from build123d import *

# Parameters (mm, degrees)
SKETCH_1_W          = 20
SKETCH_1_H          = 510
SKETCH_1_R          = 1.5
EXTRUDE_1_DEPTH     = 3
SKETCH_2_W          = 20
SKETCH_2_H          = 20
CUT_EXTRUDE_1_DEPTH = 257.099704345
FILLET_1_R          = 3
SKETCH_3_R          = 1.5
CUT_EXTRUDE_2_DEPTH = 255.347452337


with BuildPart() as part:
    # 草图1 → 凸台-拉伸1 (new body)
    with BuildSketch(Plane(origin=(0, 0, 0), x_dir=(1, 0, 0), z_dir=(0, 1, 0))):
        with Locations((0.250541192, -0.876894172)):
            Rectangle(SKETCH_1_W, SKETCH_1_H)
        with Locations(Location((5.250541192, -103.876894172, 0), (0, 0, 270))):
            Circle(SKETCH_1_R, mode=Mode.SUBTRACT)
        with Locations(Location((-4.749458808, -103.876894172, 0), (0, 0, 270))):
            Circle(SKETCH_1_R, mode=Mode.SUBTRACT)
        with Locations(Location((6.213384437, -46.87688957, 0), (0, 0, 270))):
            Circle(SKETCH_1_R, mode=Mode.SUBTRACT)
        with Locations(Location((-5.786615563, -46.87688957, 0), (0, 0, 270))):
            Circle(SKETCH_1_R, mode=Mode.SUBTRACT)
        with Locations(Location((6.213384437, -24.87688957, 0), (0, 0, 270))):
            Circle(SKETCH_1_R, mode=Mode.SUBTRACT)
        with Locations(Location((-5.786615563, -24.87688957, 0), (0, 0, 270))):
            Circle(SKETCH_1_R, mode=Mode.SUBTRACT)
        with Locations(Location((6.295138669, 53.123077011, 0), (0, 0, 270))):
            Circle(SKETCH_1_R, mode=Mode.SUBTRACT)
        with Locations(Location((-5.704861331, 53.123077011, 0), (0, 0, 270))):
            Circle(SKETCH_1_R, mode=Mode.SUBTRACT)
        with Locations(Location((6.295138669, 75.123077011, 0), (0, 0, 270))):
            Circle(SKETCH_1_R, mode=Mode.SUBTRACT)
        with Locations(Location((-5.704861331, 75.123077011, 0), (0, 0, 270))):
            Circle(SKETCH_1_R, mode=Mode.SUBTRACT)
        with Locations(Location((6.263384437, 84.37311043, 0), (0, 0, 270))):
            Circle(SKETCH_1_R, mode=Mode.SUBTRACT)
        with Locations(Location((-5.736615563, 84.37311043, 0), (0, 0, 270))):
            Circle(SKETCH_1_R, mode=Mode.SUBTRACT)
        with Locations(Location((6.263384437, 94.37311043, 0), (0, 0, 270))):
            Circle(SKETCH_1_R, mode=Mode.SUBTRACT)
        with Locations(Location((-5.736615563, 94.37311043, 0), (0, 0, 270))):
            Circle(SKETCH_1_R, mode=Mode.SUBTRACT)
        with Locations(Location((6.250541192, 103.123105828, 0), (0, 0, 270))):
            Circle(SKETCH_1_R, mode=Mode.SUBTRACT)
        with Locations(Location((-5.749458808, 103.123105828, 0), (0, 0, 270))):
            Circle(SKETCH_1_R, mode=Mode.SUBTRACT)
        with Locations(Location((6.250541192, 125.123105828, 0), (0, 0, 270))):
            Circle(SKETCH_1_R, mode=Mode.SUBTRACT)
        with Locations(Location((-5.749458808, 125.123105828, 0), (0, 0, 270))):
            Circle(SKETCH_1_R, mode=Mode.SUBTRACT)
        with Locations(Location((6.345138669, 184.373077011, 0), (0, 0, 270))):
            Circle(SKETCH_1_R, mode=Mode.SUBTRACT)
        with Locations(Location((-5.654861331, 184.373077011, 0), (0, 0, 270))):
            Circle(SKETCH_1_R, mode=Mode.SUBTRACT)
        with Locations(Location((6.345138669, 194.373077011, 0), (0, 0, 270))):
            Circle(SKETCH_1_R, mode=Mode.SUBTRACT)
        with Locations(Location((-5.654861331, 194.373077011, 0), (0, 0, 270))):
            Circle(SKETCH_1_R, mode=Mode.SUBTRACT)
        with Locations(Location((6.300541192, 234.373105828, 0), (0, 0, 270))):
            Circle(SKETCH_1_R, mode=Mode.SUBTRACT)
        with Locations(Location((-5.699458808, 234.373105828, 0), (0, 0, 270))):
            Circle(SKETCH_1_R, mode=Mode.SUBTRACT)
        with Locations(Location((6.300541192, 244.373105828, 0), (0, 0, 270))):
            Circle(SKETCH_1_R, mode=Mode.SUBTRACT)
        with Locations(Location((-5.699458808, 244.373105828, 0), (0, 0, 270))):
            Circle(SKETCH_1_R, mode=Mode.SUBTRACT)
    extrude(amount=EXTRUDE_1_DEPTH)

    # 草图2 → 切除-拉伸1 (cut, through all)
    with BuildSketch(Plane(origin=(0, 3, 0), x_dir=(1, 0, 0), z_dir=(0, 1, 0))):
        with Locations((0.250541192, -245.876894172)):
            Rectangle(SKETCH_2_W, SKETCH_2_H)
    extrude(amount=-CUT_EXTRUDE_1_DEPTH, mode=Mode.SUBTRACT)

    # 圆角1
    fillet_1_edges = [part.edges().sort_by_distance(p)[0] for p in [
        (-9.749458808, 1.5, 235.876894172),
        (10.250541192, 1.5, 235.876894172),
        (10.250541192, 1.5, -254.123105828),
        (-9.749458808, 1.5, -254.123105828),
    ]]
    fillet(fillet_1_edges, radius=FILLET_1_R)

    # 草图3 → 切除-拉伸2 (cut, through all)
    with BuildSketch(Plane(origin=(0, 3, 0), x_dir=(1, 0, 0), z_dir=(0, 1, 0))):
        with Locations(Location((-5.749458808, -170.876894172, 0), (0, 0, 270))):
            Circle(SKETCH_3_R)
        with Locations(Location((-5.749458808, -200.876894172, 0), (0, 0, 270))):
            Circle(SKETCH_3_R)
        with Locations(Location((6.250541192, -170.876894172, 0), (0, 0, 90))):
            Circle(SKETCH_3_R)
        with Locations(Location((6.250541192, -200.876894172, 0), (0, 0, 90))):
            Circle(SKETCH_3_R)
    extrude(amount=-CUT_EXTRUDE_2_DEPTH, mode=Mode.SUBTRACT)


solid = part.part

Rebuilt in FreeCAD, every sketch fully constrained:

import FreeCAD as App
import Part
import Sketcher


def edges_at(feature, points):
    """Names of the edges that pass closest to the given points."""
    edges = feature.Shape.Edges
    near = lambda p: min(range(len(edges)), key=lambda i: edges[i].distToShape(Part.Vertex(*p))[0])
    return sorted({f"Edge{near(p) + 1}" for p in points})

doc = App.newDocument("Part")
body = doc.addObject("PartDesign::Body", "Body")

sketch1 = doc.addObject("Sketcher::SketchObject", "Sketch")
body.addObject(sketch1)
sketch1.AttachmentSupport = (doc.XZ_Plane, [""])
sketch1.MapMode = "FlatFace"
sketch1.addGeometry([
    Part.LineSegment(App.Vector(-9.749459, -254.123106, 0), App.Vector(-9.749459, 255.876894, 0)),
    Part.LineSegment(App.Vector(-9.749459, 255.876894, 0), App.Vector(10.250541, 255.876894, 0)),
    Part.LineSegment(App.Vector(10.250541, 255.876894, 0), App.Vector(10.250541, -254.123106, 0)),
    Part.LineSegment(App.Vector(10.250541, -254.123106, 0), App.Vector(-9.749459, -254.123106, 0)),
    Part.Circle(App.Vector(-4.749459, 103.876894, 0), App.Vector(0, 0, 1), 1.5),
    Part.Circle(App.Vector(-5.786616, 46.87689, 0), App.Vector(0, 0, 1), 1.5),
    Part.Circle(App.Vector(-5.786616, 24.87689, 0), App.Vector(0, 0, 1), 1.5),
    Part.Circle(App.Vector(-5.704861, -53.123077, 0), App.Vector(0, 0, 1), 1.5),
    Part.Circle(App.Vector(5.250541, 103.876894, 0), App.Vector(0, 0, 1), 1.5),
    Part.Circle(App.Vector(6.213384, 46.87689, 0), App.Vector(0, 0, 1), 1.5),
    Part.Circle(App.Vector(6.213384, 24.87689, 0), App.Vector(0, 0, 1), 1.5),
    Part.Circle(App.Vector(6.295139, -53.123077, 0), App.Vector(0, 0, 1), 1.5),
    Part.Circle(App.Vector(-5.704861, -75.123077, 0), App.Vector(0, 0, 1), 1.5),
    Part.Circle(App.Vector(-5.736616, -84.37311, 0), App.Vector(0, 0, 1), 1.5),
    Part.Circle(App.Vector(-5.736616, -94.37311, 0), App.Vector(0, 0, 1), 1.5),
    Part.Circle(App.Vector(-5.749459, -103.123106, 0), App.Vector(0, 0, 1), 1.5),
    Part.Circle(App.Vector(-5.749459, -125.123106, 0), App.Vector(0, 0, 1), 1.5),
    Part.Circle(App.Vector(-5.654861, -184.373077, 0), App.Vector(0, 0, 1), 1.5),
    Part.Circle(App.Vector(-5.654861, -194.373077, 0), App.Vector(0, 0, 1), 1.5),
    Part.Circle(App.Vector(-5.699459, -234.373106, 0), App.Vector(0, 0, 1), 1.5),
    Part.Circle(App.Vector(-5.699459, -244.373106, 0), App.Vector(0, 0, 1), 1.5),
    Part.Circle(App.Vector(6.295139, -75.123077, 0), App.Vector(0, 0, 1), 1.5),
    Part.Circle(App.Vector(6.263384, -84.37311, 0), App.Vector(0, 0, 1), 1.5),
    Part.Circle(App.Vector(6.263384, -94.37311, 0), App.Vector(0, 0, 1), 1.5),
    Part.Circle(App.Vector(6.250541, -103.123106, 0), App.Vector(0, 0, 1), 1.5),
    Part.Circle(App.Vector(6.250541, -125.123106, 0), App.Vector(0, 0, 1), 1.5),
    Part.Circle(App.Vector(6.345139, -184.373077, 0), App.Vector(0, 0, 1), 1.5),
    Part.Circle(App.Vector(6.345139, -194.373077, 0), App.Vector(0, 0, 1), 1.5),
    Part.Circle(App.Vector(6.300541, -234.373106, 0), App.Vector(0, 0, 1), 1.5),
    Part.Circle(App.Vector(6.300541, -244.373106, 0), App.Vector(0, 0, 1), 1.5),
], False)
sketch1.addConstraint([
    Sketcher.Constraint("Coincident", 0, 2, 1, 1),
    Sketcher.Constraint("Coincident", 1, 2, 2, 1),
    Sketcher.Constraint("Coincident", 2, 2, 3, 1),
    Sketcher.Constraint("Coincident", 3, 2, 0, 1),
    Sketcher.Constraint("Vertical", 0),
    Sketcher.Constraint("Horizontal", 1),
    Sketcher.Constraint("Vertical", 2),
    Sketcher.Constraint("Horizontal", 3),
    Sketcher.Constraint("Equal", 4, 5),
    Sketcher.Constraint("Equal", 5, 6),
    Sketcher.Constraint("Equal", 6, 7),
    Sketcher.Constraint("Equal", 7, 8),
    Sketcher.Constraint("Equal", 8, 9),
    Sketcher.Constraint("Equal", 9, 10),
    Sketcher.Constraint("Equal", 10, 11),
    Sketcher.Constraint("Equal", 11, 12),
    Sketcher.Constraint("Equal", 12, 13),
    Sketcher.Constraint("Equal", 13, 14),
    Sketcher.Constraint("Equal", 14, 15),
    Sketcher.Constraint("Equal", 15, 16),
    Sketcher.Constraint("Equal", 16, 17),
    Sketcher.Constraint("Equal", 17, 18),
    Sketcher.Constraint("Equal", 18, 19),
    Sketcher.Constraint("Equal", 19, 20),
    Sketcher.Constraint("Equal", 20, 21),
    Sketcher.Constraint("Equal", 21, 22),
    Sketcher.Constraint("Equal", 22, 23),
    Sketcher.Constraint("Equal", 23, 24),
    Sketcher.Constraint("Equal", 24, 25),
    Sketcher.Constraint("Equal", 25, 26),
    Sketcher.Constraint("Equal", 26, 27),
    Sketcher.Constraint("Equal", 27, 28),
    Sketcher.Constraint("Equal", 28, 29),
    Sketcher.Constraint("Horizontal", 4, 3, 8, 3),
    Sketcher.Constraint("Horizontal", 5, 3, 9, 3),
    Sketcher.Constraint("Horizontal", 6, 3, 10, 3),
    Sketcher.Constraint("Horizontal", 7, 3, 11, 3),
    Sketcher.Constraint("Horizontal", 12, 3, 21, 3),
    Sketcher.Constraint("Horizontal", 13, 3, 22, 3),
    Sketcher.Constraint("Horizontal", 14, 3, 23, 3),
    Sketcher.Constraint("Horizontal", 15, 3, 24, 3),
    Sketcher.Constraint("Horizontal", 16, 3, 25, 3),
    Sketcher.Constraint("Horizontal", 17, 3, 26, 3),
    Sketcher.Constraint("Horizontal", 18, 3, 27, 3),
    Sketcher.Constraint("Horizontal", 19, 3, 28, 3),
    Sketcher.Constraint("Horizontal", 20, 3, 29, 3),
    Sketcher.Constraint("Vertical", 5, 3, 6, 3),
    Sketcher.Constraint("Vertical", 9, 3, 10, 3),
    Sketcher.Constraint("Vertical", 7, 3, 12, 3),
    Sketcher.Constraint("Vertical", 13, 3, 14, 3),
    Sketcher.Constraint("Vertical", 15, 3, 16, 3),
    Sketcher.Constraint("Vertical", 17, 3, 18, 3),
    Sketcher.Constraint("Vertical", 19, 3, 20, 3),
    Sketcher.Constraint("Vertical", 11, 3, 21, 3),
    Sketcher.Constraint("Vertical", 22, 3, 23, 3),
    Sketcher.Constraint("Vertical", 24, 3, 25, 3),
    Sketcher.Constraint("Vertical", 26, 3, 27, 3),
    Sketcher.Constraint("Vertical", 28, 3, 29, 3),
    Sketcher.Constraint("Diameter", 4, 3.0),
    Sketcher.Constraint("DistanceX", 1, 1, 1, 2, 20.0),
    Sketcher.Constraint("DistanceY", 0, 1, 0, 2, 510.0),
    Sketcher.Constraint("DistanceY", 6, 3, 5, 3, 22.0),
    Sketcher.Constraint("DistanceX", 4, 3, 8, 3, 10.0),
    Sketcher.Constraint("DistanceX", 5, 3, 9, 3, 12.0),
    Sketcher.Constraint("DistanceX", 7, 3, 11, 3, 12.0),
    Sketcher.Constraint("DistanceY", 12, 3, 7, 3, 22.0),
    Sketcher.Constraint("DistanceY", 14, 3, 13, 3, 10.0),
    Sketcher.Constraint("DistanceY", 16, 3, 15, 3, 22.0),
    Sketcher.Constraint("DistanceY", 18, 3, 17, 3, 10.0),
    Sketcher.Constraint("DistanceY", 20, 3, 19, 3, 10.0),
    Sketcher.Constraint("DistanceX", 13, 3, 22, 3, 12.0),
    Sketcher.Constraint("DistanceX", 15, 3, 24, 3, 12.0),
    Sketcher.Constraint("DistanceX", 17, 3, 26, 3, 12.0),
    Sketcher.Constraint("DistanceX", 19, 3, 28, 3, 12.0),
    Sketcher.Constraint("DistanceX", 0, 2, 4, 3, 5.0),
    Sketcher.Constraint("DistanceY", 4, 3, 0, 2, 152.0),
    Sketcher.Constraint("DistanceX", 6, 3, 13, 3, 0.05),
    Sketcher.Constraint("DistanceY", 13, 3, 6, 3, 109.25),
    Sketcher.Constraint("DistanceX", 12, 3, 17, 3, 0.05),
    Sketcher.Constraint("DistanceY", 17, 3, 12, 3, 109.25),
    Sketcher.Constraint("DistanceX", 16, 3, 19, 3, 0.05),
    Sketcher.Constraint("DistanceY", 19, 3, 16, 3, 109.25),
    Sketcher.Constraint("DistanceX", 29, 3, 2, 2, 3.95),
    Sketcher.Constraint("DistanceY", 2, 2, 29, 3, 9.75),
    Sketcher.Constraint("DistanceX", 4, 3, -1, 1, 4.749459),
    Sketcher.Constraint("DistanceY", -1, 1, 5, 3, 46.87689),
    Sketcher.Constraint("DistanceX", 7, 3, -1, 1, 5.704861),
    Sketcher.Constraint("DistanceY", 7, 3, 4, 3, 156.999971),
    Sketcher.Constraint("DistanceY", -1, 1, 4, 3, 103.876894),
    Sketcher.Constraint("DistanceX", 5, 3, -1, 1, 5.786616),
])
pad1 = doc.addObject("PartDesign::Pad", "Pad")
body.addObject(pad1)
pad1.Profile = sketch1
pad1.Length = 3
pad1.Reversed = True

sketch2 = doc.addObject("Sketcher::SketchObject", "Sketch001")
body.addObject(sketch2)
sketch2.AttachmentSupport = (doc.XZ_Plane, [""])
sketch2.MapMode = "FlatFace"
sketch2.AttachmentOffset = App.Placement(App.Vector(0, 0, -3), App.Rotation())
sketch2.addGeometry([
    Part.LineSegment(App.Vector(-9.749459, 235.876894, 0), App.Vector(-9.749459, 255.876894, 0)),
    Part.LineSegment(App.Vector(-9.749459, 255.876894, 0), App.Vector(10.250541, 255.876894, 0)),
    Part.LineSegment(App.Vector(10.250541, 255.876894, 0), App.Vector(10.250541, 235.876894, 0)),
    Part.LineSegment(App.Vector(10.250541, 235.876894, 0), App.Vector(-9.749459, 235.876894, 0)),
], False)
sketch2.addConstraint([
    Sketcher.Constraint("Coincident", 0, 2, 1, 1),
    Sketcher.Constraint("Coincident", 1, 2, 2, 1),
    Sketcher.Constraint("Coincident", 2, 2, 3, 1),
    Sketcher.Constraint("Coincident", 3, 2, 0, 1),
    Sketcher.Constraint("Vertical", 0),
    Sketcher.Constraint("Horizontal", 1),
    Sketcher.Constraint("Vertical", 2),
    Sketcher.Constraint("Horizontal", 3),
    Sketcher.Constraint("Equal", 3, 0),
    Sketcher.Constraint("DistanceX", 1, 1, 1, 2, 20.0),
    Sketcher.Constraint("DistanceX", 0, 2, -1, 1, 9.749459),
    Sketcher.Constraint("DistanceY", -1, 1, 0, 2, 255.876894),
])
pocket1 = doc.addObject("PartDesign::Pocket", "Pocket")
body.addObject(pocket1)
pocket1.Profile = sketch2
pocket1.Type = "ThroughAll"
pocket1.Reversed = True
doc.recompute()

fillet = doc.addObject("PartDesign::Fillet", "Fillet")
body.addObject(fillet)
fillet.Base = (pocket1, edges_at(pocket1, [
    (-9.749, 1.5, 235.877),
    (10.251, 1.5, 235.877),
    (10.251, 1.5, -254.123),
    (-9.749, 1.5, -254.123),
]))
fillet.Radius = 3

sketch3 = doc.addObject("Sketcher::SketchObject", "Sketch002")
body.addObject(sketch3)
sketch3.AttachmentSupport = (doc.XZ_Plane, [""])
sketch3.MapMode = "FlatFace"
sketch3.AttachmentOffset = App.Placement(App.Vector(0, 0, -3), App.Rotation())
sketch3.addGeometry([
    Part.Circle(App.Vector(-5.749459, 170.876894, 0), App.Vector(0, 0, 1), 1.5),
    Part.Circle(App.Vector(-5.749459, 200.876894, 0), App.Vector(0, 0, 1), 1.5),
    Part.Circle(App.Vector(6.250541, 170.876894, 0), App.Vector(0, 0, 1), 1.5),
    Part.Circle(App.Vector(6.250541, 200.876894, 0), App.Vector(0, 0, 1), 1.5),
], False)
sketch3.addConstraint([
    Sketcher.Constraint("Equal", 0, 1),
    Sketcher.Constraint("Equal", 1, 2),
    Sketcher.Constraint("Equal", 2, 3),
    Sketcher.Constraint("Horizontal", 0, 3, 2, 3),
    Sketcher.Constraint("Horizontal", 1, 3, 3, 3),
    Sketcher.Constraint("Vertical", 0, 3, 1, 3),
    Sketcher.Constraint("Vertical", 2, 3, 3, 3),
    Sketcher.Constraint("Diameter", 0, 3.0),
    Sketcher.Constraint("DistanceY", 0, 3, 1, 3, 30.0),
    Sketcher.Constraint("DistanceX", 0, 3, 2, 3, 12.0),
    Sketcher.Constraint("DistanceX", 0, 3, -1, 1, 5.749459),
    Sketcher.Constraint("DistanceY", -1, 1, 0, 3, 170.876894),
])
pocket2 = doc.addObject("PartDesign::Pocket", "Pocket001")
body.addObject(pocket2)
pocket2.Profile = sketch3
pocket2.Type = "ThroughAll"
pocket2.Reversed = True

doc.recompute()
